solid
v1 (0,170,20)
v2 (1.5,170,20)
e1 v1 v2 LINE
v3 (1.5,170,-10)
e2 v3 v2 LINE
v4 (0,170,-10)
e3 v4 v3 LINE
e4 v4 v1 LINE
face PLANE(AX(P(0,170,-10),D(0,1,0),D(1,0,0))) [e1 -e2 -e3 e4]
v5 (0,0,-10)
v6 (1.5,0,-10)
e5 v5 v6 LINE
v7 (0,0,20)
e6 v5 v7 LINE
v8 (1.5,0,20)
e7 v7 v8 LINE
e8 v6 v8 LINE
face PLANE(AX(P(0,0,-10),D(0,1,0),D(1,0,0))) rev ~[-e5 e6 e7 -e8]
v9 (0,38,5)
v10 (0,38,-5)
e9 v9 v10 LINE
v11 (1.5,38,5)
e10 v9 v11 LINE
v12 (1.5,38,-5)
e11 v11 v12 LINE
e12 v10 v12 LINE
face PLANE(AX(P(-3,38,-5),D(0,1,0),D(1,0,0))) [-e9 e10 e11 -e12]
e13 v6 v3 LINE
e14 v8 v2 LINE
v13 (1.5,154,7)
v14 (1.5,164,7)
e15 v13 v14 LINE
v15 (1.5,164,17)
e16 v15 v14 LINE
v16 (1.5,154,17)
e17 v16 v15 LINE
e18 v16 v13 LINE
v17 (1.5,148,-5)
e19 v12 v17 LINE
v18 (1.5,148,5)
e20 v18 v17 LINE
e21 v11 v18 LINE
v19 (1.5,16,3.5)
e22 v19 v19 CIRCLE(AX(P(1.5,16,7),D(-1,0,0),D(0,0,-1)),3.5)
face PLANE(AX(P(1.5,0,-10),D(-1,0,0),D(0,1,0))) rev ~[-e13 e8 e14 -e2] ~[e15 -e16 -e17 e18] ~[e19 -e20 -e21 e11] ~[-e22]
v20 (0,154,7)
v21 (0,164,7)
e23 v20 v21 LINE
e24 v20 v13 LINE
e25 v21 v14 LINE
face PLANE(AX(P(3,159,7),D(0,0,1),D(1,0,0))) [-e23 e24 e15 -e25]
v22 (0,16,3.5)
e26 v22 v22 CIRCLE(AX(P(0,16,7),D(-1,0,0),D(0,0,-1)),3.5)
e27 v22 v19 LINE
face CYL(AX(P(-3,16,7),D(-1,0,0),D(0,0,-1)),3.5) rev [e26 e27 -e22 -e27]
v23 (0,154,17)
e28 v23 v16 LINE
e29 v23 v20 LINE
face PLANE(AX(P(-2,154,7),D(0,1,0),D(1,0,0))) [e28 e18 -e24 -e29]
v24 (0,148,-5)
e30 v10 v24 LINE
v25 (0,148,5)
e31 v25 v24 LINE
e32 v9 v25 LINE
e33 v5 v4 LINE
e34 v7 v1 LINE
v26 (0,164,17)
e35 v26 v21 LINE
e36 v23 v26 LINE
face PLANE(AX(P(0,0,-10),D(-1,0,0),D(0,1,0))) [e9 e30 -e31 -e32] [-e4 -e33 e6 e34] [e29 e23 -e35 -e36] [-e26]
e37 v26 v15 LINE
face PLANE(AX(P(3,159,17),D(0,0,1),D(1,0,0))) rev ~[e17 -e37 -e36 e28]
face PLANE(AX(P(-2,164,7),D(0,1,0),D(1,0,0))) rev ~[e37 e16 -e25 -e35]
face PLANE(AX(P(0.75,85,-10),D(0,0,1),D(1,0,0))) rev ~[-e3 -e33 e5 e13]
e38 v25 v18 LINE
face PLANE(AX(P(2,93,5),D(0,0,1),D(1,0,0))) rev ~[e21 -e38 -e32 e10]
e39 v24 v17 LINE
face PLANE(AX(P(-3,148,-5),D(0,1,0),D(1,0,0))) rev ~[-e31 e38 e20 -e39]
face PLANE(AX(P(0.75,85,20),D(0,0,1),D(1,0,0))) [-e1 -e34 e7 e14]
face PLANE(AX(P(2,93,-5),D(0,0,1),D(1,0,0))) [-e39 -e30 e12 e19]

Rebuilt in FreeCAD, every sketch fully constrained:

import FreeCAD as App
import Part
import Sketcher
from FreeCAD import Vector
Q = App.Units.Quantity

doc = App.newDocument("Part")
body = doc.addObject("PartDesign::Body", "Body")

# Sketch on XY plane
sketch1 = body.newObject("Sketcher::SketchObject", "Sketch")
sketch1.AttachmentSupport = (doc.getObject("XY_Plane"), [""])
sketch1.MapMode = "FlatFace"
sketch1.AttachmentOffset = App.Placement(Vector(0, 0, 7), App.Rotation())
sketch1.addGeometry(Part.LineSegment(Vector(-2, 164, 0), Vector(-2, 154, 0)), False)
sketch1.addGeometry(Part.LineSegment(Vector(-2, 154, 0), Vector(8, 154, 0)), False)
sketch1.addGeometry(Part.LineSegment(Vector(8, 154, 0), Vector(8, 164, 0)), False)
sketch1.addGeometry(Part.LineSegment(Vector(8, 164, 0), Vector(-2, 164, 0)), False)
sketch1.addConstraint(Sketcher.Constraint("Coincident", 0, 2, 1, 1))
sketch1.addConstraint(Sketcher.Constraint("Coincident", 1, 2, 2, 1))
sketch1.addConstraint(Sketcher.Constraint("Coincident", 2, 2, 3, 1))
sketch1.addConstraint(Sketcher.Constraint("Coincident", 3, 2, 0, 1))
sketch1.addConstraint(Sketcher.Constraint("Vertical", 0))
sketch1.addConstraint(Sketcher.Constraint("Horizontal", 1))
sketch1.addConstraint(Sketcher.Constraint("Vertical", 2))
sketch1.addConstraint(Sketcher.Constraint("Horizontal", 3))
sketch1.addConstraint(Sketcher.Constraint("Equal", 3, 0))
sketch1.addConstraint(Sketcher.Constraint("DistanceX", 1, 1, 1, 2, Q("10 mm")))
sketch1.addConstraint(Sketcher.Constraint("DistanceX", 0, 2, -1, 1, Q("2 mm")))
sketch1.addConstraint(Sketcher.Constraint("DistanceY", -1, 1, 0, 2, Q("154 mm")))
pad1 = body.newObject("PartDesign::Pad", "Pad")
pad1.Profile = sketch1
pad1.Length = 10
body2 = doc.addObject("PartDesign::Body", "Body001")

# Sketch on XY plane
sketch2 = body2.newObject("Sketcher::SketchObject", "Sketch001")
sketch2.AttachmentSupport = (doc.getObject("XY_Plane001"), [""])
sketch2.MapMode = "FlatFace"
sketch2.AttachmentOffset = App.Placement(Vector(0, 0, -5), App.Rotation())
sketch2.addGeometry(Part.LineSegment(Vector(-3, 148, 0), Vector(-3, 38, 0)), False)
sketch2.addGeometry(Part.LineSegment(Vector(-3, 38, 0), Vector(7, 38, 0)), False)
sketch2.addGeometry(Part.LineSegment(Vector(7, 38, 0), Vector(7, 148, 0)), False)
sketch2.addGeometry(Part.LineSegment(Vector(7, 148, 0), Vector(-3, 148, 0)), False)
sketch2.addConstraint(Sketcher.Constraint("Coincident", 0, 2, 1, 1))
sketch2.addConstraint(Sketcher.Constraint("Coincident", 1, 2, 2, 1))
sketch2.addConstraint(Sketcher.Constraint("Coincident", 2, 2, 3, 1))
sketch2.addConstraint(Sketcher.Constraint("Coincident", 3, 2, 0, 1))
sketch2.addConstraint(Sketcher.Constraint("Vertical", 0))
sketch2.addConstraint(Sketcher.Constraint("Horizontal", 1))
sketch2.addConstraint(Sketcher.Constraint("Vertical", 2))
sketch2.addConstraint(Sketcher.Constraint("Horizontal", 3))
sketch2.addConstraint(Sketcher.Constraint("DistanceX", 1, 1, 1, 2, Q("10 mm")))
sketch2.addConstraint(Sketcher.Constraint("DistanceY", 0, 2, 0, 1, Q("110 mm")))
sketch2.addConstraint(Sketcher.Constraint("DistanceX", 0, 2, -1, 1, Q("3 mm")))
sketch2.addConstraint(Sketcher.Constraint("DistanceY", -1, 1, 0, 2, Q("38 mm")))
pad2 = body2.newObject("PartDesign::Pad", "Pad001")
pad2.Profile = sketch2
pad2.Length = 10
body3 = doc.addObject("PartDesign::Body", "Body002")

# Sketch on YZ plane
sketch3 = body3.newObject("Sketcher::SketchObject", "Sketch002")
sketch3.AttachmentSupport = (doc.getObject("YZ_Plane002"), [""])
sketch3.MapMode = "FlatFace"
sketch3.AttachmentOffset = App.Placement(Vector(0, 0, -3), App.Rotation())
sketch3.addGeometry(Part.Circle(Vector(16, 7, 0), Vector(0, 0, 1), 3.5), False)
sketch3.addConstraint(Sketcher.Constraint("Diameter", 0, Q("7 mm")))
sketch3.addConstraint(Sketcher.Constraint("DistanceX", -1, 1, 0, 3, Q("16 mm")))
sketch3.addConstraint(Sketcher.Constraint("DistanceY", -1, 1, 0, 3, Q("7 mm")))
pad3 = body3.newObject("PartDesign::Pad", "Pad002")
pad3.Profile = sketch3
pad3.Length = 10
body4 = doc.addObject("PartDesign::Body", "Body003")

# Sketch on XY plane
sketch4 = body4.newObject("Sketcher::SketchObject", "Sketch003")
sketch4.AttachmentSupport = (doc.getObject("XY_Plane003"), [""])
sketch4.MapMode = "FlatFace"
sketch4.AttachmentOffset = App.Placement(Vector(0, 0, -10), App.Rotation())
sketch4.addGeometry(Part.LineSegment(Vector(0, 170, 0), Vector(0, 0, 0)), False)
sketch4.addGeometry(Part.LineSegment(Vector(0, 0, 0), Vector(1.5, 0, 0)), False)
sketch4.addGeometry(Part.LineSegment(Vector(1.5, 0, 0), Vector(1.5, 170, 0)), False)
sketch4.addGeometry(Part.LineSegment(Vector(1.5, 170, 0), Vector(0, 170, 0)), False)
sketch4.addConstraint(Sketcher.Constraint("Coincident", 0, 2, 1, 1))
sketch4.addConstraint(Sketcher.Constraint("Coincident", 1, 2, 2, 1))
sketch4.addConstraint(Sketcher.Constraint("Coincident", 2, 2, 3, 1))
sketch4.addConstraint(Sketcher.Constraint("Coincident", 3, 2, 0, 1))
sketch4.addConstraint(Sketcher.Constraint("Vertical", 0))
sketch4.addConstraint(Sketcher.Constraint("Horizontal", 1))
sketch4.addConstraint(Sketcher.Constraint("Vertical", 2))
sketch4.addConstraint(Sketcher.Constraint("Horizontal", 3))
sketch4.addConstraint(Sketcher.Constraint("Coincident", 0, 2, -1, 1))
sketch4.addConstraint(Sketcher.Constraint("DistanceY", 0, 2, 0, 1, Q("170 mm")))
sketch4.addConstraint(Sketcher.Constraint("DistanceX", 1, 1, 1, 2, Q("1.5 mm")))
pad4 = body4.newObject("PartDesign::Pad", "Pad003")
pad4.Profile = sketch4
pad4.Length = 30
doc.recompute()

boolean = body4.newObject("PartDesign::Boolean", "Boolean")
boolean.Type = "Cut"
boolean.addObjects([body3])
doc.recompute()

boolean2 = body4.newObject("PartDesign::Boolean", "Boolean001")
boolean2.Type = "Cut"
boolean2.addObjects([body2])
doc.recompute()

boolean3 = body4.newObject("PartDesign::Boolean", "Boolean002")
boolean3.Type = "Cut"
boolean3.addObjects([body])

doc.recompute()
